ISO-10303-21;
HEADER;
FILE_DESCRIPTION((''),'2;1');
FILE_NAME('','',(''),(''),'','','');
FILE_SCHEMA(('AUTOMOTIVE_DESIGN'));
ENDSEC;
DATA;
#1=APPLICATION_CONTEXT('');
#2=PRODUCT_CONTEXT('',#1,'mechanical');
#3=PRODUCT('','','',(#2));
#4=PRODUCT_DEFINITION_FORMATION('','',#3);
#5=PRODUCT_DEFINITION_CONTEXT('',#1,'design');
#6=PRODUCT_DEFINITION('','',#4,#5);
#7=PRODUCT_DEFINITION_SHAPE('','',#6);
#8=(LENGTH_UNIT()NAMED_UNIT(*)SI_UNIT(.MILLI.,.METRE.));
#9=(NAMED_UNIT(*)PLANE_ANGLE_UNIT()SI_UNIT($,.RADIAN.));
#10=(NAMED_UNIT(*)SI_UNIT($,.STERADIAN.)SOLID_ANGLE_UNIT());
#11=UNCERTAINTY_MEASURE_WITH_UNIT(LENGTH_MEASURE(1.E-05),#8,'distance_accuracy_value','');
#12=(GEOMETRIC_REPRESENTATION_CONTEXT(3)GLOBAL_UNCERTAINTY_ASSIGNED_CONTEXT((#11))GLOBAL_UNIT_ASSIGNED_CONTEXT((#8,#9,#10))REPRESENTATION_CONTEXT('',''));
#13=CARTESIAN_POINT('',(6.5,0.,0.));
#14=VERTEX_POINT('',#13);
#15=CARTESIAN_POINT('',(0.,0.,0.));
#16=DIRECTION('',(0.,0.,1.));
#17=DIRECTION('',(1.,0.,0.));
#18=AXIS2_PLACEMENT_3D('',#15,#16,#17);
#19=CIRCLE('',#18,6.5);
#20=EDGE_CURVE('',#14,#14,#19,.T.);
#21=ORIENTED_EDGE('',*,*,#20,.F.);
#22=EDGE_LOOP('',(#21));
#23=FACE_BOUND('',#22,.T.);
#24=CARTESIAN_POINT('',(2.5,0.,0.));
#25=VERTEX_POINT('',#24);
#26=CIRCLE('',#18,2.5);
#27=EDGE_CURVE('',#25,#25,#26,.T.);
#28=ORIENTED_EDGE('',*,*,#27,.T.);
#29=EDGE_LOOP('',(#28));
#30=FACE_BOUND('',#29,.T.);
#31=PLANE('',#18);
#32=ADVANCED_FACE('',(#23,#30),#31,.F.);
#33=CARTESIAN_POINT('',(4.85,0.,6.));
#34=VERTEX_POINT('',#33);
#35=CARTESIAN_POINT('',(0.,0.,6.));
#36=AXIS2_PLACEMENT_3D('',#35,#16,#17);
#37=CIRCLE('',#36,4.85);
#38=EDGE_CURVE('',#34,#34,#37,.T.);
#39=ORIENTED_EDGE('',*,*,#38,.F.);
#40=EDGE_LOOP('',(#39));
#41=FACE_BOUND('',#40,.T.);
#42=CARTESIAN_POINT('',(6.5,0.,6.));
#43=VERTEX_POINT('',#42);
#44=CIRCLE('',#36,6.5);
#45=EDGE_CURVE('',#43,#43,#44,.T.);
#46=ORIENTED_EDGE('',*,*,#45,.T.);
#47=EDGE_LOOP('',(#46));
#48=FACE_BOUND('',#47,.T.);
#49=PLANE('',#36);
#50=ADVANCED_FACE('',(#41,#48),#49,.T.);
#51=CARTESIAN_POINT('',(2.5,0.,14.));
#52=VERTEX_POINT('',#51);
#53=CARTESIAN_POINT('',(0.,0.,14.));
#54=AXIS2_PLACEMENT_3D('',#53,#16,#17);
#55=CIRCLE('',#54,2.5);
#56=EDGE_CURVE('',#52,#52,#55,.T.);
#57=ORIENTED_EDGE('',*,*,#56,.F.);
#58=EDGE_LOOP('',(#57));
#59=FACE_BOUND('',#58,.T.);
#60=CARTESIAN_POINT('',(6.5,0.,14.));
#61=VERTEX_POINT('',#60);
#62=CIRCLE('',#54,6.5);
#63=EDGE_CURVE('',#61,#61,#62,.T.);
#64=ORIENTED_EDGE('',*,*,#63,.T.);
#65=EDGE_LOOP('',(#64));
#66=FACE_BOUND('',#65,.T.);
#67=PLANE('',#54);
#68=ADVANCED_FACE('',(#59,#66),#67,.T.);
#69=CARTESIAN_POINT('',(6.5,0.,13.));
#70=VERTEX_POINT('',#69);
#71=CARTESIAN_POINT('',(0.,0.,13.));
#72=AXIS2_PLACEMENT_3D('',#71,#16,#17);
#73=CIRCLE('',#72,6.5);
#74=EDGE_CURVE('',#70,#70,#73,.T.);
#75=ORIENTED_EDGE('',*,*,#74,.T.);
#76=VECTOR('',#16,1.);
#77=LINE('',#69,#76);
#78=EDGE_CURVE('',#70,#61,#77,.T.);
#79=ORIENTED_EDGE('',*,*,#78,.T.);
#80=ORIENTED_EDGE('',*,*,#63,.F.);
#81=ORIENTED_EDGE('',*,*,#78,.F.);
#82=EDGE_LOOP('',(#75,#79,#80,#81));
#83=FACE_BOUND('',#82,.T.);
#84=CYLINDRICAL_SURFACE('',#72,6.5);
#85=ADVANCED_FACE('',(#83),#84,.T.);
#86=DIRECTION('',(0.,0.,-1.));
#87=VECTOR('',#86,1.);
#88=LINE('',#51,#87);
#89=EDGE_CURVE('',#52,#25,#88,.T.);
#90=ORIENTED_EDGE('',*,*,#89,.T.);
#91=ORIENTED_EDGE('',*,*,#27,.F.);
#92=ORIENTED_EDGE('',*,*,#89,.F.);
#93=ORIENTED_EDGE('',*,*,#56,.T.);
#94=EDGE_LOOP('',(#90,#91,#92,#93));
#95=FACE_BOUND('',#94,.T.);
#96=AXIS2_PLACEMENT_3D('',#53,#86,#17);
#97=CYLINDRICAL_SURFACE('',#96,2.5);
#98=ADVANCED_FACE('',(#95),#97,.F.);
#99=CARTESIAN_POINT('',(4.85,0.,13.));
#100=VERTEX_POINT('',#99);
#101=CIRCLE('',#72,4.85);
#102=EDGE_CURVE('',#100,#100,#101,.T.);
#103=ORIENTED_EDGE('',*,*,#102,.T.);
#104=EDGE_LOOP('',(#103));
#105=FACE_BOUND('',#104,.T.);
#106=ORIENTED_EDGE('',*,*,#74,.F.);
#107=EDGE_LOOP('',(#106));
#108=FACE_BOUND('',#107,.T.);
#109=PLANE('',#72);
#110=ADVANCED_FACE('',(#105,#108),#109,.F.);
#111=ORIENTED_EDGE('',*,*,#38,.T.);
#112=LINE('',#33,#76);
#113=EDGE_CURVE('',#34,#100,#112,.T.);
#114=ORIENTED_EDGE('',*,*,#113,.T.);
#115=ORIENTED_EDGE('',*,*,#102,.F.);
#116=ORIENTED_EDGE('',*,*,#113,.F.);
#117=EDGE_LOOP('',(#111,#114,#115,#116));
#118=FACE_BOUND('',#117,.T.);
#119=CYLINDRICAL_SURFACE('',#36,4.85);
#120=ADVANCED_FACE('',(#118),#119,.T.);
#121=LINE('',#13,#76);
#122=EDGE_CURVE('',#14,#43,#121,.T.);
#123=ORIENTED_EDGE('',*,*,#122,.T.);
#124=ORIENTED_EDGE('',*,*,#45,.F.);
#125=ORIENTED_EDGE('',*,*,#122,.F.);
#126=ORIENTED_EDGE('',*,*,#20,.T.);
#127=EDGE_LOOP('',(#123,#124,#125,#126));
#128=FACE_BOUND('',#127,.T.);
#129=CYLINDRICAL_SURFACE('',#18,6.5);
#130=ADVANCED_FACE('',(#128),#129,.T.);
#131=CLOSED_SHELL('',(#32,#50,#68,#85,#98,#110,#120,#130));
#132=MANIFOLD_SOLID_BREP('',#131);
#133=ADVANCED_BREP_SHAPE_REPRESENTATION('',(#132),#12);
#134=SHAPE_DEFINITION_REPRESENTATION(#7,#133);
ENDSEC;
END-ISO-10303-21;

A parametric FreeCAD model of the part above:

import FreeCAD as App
import Part
import Sketcher

V = App.Vector

doc = App.newDocument("Part")
body = doc.addObject("PartDesign::Body", "Body")

# Sketch on XZ plane
sketch1 = doc.addObject("Sketcher::SketchObject", "Sketch")
body.addObject(sketch1)
sketch1.AttachmentSupport = (doc.XZ_Plane, [""])
sketch1.MapMode = "FlatFace"
sketch1.addGeometry([
    Part.LineSegment(V(2.5, 0, 0), V(6.5, 0, 0)),  # 0
    Part.LineSegment(V(6.5, 0, 0), V(6.5, 6, 0)),  # 1
    Part.LineSegment(V(6.5, 6, 0), V(4.8, 6, 0)),  # 2
    Part.LineSegment(V(4.8, 6, 0), V(4.8, 13, 0)),  # 3
    Part.LineSegment(V(4.8, 13, 0), V(6.5, 13, 0)),  # 4
    Part.LineSegment(V(6.5, 13, 0), V(6.5, 14, 0)),  # 5
    Part.LineSegment(V(6.5, 14, 0), V(2.5, 14, 0)),  # 6
    Part.LineSegment(V(2.5, 14, 0), V(2.5, 0, 0)),  # 7
], False)
sketch1.addConstraint([
    Sketcher.Constraint("Coincident", 0, 2, 1, 1),
    Sketcher.Constraint("Coincident", 1, 2, 2, 1),
    Sketcher.Constraint("Coincident", 2, 2, 3, 1),
    Sketcher.Constraint("Coincident", 3, 2, 4, 1),
    Sketcher.Constraint("Coincident", 4, 2, 5, 1),
    Sketcher.Constraint("Coincident", 5, 2, 6, 1),
    Sketcher.Constraint("Coincident", 6, 2, 7, 1),
    Sketcher.Constraint("Coincident", 7, 2, 0, 1),
    Sketcher.Constraint("Horizontal", 0),
    Sketcher.Constraint("Vertical", 1),
    Sketcher.Constraint("Horizontal", 2),
    Sketcher.Constraint("Vertical", 3),
    Sketcher.Constraint("Horizontal", 4),
    Sketcher.Constraint("Vertical", 5),
    Sketcher.Constraint("Horizontal", 6),
    Sketcher.Constraint("Vertical", 7),
    Sketcher.Constraint("PointOnObject", 0, 2, -1),
    Sketcher.Constraint("Vertical", 1, 2, 4, 2),
    Sketcher.Constraint("DistanceX", 0, 1, 0, 2, 4.0),
    Sketcher.Constraint("DistanceY", 1, 1, 1, 2, 6.0),
    Sketcher.Constraint("DistanceY", 3, 1, 3, 2, 7.0),
    Sketcher.Constraint("DistanceY", 5, 1, 5, 2, 1.0),
    Sketcher.Constraint("DistanceX", 2, 2, 2, 1, 1.65),
    Sketcher.Constraint("DistanceX", -1, 1, 0, 2, 6.5),
])
revolution = doc.addObject("PartDesign::Revolution", "Revolution")
body.addObject(revolution)
revolution.Profile = sketch1
revolution.ReferenceAxis = (sketch1, ["V_Axis"])
revolution.Angle = 360

doc.recompute()
